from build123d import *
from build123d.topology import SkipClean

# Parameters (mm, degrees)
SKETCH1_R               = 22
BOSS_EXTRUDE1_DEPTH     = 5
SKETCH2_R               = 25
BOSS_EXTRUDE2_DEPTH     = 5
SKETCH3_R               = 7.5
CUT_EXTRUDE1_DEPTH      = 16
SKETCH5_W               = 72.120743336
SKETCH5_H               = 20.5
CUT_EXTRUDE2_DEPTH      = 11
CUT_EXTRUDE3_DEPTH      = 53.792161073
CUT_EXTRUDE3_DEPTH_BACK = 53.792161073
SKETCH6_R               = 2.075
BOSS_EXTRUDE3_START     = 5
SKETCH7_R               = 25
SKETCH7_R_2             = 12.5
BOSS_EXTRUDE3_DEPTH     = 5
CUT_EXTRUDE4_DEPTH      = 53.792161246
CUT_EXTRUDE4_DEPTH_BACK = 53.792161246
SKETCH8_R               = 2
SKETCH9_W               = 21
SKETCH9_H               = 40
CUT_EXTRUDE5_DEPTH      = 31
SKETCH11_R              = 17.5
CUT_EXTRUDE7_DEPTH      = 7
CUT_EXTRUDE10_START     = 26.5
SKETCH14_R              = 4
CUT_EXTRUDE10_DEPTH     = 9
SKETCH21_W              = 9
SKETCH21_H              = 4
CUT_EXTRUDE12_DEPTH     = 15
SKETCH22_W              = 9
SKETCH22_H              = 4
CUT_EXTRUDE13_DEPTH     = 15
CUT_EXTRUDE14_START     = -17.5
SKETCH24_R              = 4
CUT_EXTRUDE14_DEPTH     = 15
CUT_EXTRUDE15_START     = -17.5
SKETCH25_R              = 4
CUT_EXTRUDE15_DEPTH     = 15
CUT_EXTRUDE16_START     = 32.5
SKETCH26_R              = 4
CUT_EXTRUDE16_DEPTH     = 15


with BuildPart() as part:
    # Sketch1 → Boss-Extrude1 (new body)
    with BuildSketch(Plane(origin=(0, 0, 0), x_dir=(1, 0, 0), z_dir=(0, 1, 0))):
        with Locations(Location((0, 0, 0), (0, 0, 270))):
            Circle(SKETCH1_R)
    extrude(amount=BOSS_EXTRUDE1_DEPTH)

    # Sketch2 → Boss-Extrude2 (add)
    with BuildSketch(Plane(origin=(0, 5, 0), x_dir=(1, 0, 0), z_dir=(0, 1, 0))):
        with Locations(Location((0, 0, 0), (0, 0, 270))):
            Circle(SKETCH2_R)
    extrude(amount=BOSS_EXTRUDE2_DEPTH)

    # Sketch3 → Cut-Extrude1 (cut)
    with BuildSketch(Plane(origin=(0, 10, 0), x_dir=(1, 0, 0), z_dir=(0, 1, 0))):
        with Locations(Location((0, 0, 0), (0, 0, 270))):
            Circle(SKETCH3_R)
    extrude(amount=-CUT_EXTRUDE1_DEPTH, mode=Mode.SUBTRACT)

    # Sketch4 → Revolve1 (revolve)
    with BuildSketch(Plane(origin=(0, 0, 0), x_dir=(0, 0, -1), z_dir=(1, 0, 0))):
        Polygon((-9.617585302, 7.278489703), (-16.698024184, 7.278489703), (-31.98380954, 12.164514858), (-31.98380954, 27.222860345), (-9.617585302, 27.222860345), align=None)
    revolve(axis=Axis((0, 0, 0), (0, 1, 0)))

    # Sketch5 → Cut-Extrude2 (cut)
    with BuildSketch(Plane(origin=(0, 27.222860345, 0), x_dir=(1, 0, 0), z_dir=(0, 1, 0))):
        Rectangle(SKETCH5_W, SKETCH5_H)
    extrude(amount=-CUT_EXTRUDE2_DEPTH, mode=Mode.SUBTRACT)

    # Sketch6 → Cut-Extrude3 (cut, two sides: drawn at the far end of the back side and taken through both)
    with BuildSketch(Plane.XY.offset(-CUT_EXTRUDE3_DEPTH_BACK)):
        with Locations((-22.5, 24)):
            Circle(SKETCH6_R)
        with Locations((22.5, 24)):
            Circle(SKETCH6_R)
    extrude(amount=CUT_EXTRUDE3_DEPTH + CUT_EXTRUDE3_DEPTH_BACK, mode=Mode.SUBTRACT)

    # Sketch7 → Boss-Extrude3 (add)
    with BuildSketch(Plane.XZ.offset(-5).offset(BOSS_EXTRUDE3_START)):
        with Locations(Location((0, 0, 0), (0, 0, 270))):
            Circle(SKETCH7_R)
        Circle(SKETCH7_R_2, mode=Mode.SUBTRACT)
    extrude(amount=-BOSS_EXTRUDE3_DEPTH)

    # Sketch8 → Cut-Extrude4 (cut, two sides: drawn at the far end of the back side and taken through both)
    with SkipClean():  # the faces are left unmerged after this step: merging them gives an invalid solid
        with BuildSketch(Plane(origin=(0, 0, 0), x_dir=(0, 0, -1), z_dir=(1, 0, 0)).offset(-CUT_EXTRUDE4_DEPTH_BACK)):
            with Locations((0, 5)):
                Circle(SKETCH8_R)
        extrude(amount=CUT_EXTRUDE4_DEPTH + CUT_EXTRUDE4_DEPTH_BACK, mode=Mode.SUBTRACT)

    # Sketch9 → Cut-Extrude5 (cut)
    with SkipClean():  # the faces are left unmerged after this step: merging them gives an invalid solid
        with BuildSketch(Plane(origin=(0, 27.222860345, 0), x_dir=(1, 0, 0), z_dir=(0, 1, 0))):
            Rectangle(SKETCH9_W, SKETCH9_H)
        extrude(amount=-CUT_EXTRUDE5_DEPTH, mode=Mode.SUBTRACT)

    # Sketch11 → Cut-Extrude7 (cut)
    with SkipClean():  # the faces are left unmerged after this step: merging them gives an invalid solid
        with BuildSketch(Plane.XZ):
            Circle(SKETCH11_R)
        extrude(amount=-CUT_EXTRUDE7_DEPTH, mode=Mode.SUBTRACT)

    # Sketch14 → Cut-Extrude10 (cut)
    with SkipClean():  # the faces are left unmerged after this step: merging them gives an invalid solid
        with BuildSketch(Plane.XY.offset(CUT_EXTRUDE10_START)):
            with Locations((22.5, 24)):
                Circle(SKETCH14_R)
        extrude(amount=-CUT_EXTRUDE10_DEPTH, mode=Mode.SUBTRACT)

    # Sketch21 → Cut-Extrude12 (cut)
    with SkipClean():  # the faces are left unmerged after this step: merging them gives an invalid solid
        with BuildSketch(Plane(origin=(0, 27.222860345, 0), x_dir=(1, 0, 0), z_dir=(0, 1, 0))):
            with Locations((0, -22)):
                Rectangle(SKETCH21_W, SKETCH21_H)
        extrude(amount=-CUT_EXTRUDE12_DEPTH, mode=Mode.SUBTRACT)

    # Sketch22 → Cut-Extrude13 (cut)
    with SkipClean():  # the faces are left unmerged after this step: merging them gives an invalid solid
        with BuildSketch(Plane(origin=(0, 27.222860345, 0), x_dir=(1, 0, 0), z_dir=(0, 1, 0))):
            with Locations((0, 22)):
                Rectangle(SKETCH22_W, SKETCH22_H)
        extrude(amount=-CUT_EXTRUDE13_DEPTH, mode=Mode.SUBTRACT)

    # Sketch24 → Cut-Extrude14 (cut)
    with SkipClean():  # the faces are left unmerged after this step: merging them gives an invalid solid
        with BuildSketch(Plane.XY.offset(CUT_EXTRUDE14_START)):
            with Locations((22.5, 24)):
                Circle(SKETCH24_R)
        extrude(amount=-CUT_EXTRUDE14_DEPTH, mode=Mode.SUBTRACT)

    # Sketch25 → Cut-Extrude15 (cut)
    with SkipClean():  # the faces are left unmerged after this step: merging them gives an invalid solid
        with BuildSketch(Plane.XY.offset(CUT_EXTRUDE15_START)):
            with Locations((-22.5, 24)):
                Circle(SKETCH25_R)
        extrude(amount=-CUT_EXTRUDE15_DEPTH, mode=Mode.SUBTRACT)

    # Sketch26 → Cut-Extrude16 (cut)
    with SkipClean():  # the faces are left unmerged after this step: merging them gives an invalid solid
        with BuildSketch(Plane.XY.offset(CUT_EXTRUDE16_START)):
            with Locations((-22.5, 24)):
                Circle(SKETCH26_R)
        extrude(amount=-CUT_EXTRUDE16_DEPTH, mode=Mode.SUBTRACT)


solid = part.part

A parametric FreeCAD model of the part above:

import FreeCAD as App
import Part
import Sketcher
Q = App.Units.Quantity


def add_polygon(sketch, points):
    """Adds a closed chain of lines whose ends are joined by coincident constraints."""
    first, n = sketch.GeometryCount, len(points)
    for a, b in zip(points, points[1:] + points[:1]):
        sketch.addGeometry(Part.LineSegment(App.Vector(*a, 0), App.Vector(*b, 0)), False)
    for i in range(n):
        sketch.addConstraint(Sketcher.Constraint("Coincident", first + i, 2, first + (i + 1) % n, 1))

doc = App.newDocument("Part")
body = doc.addObject("PartDesign::Body", "Body")

# Sketch on XZ plane
sketch1 = body.newObject("Sketcher::SketchObject", "Sketch")
sketch1.AttachmentSupport = (doc.getObject("XZ_Plane"), [""])
sketch1.MapMode = "FlatFace"
sketch1.addGeometry(Part.Circle(App.Vector(0, 0, 0), App.Vector(0, 0, 1), 22), False)
sketch1.addConstraint([
    Sketcher.Constraint("Coincident", 0, 3, -1, 1),
    Sketcher.Constraint("Diameter", 0, Q("44 mm")),
])
pad1 = body.newObject("PartDesign::Pad", "Pad")
pad1.Profile = sketch1
pad1.Length = 5
pad1.Reversed = True

# Sketch on XZ plane
sketch2 = body.newObject("Sketcher::SketchObject", "Sketch001")
sketch2.AttachmentSupport = (doc.getObject("XZ_Plane"), [""])
sketch2.MapMode = "FlatFace"
sketch2.AttachmentOffset = App.Placement(App.Vector(0, 0, -5), App.Rotation())
sketch2.addGeometry(Part.Circle(App.Vector(0, 0, 0), App.Vector(0, 0, 1), 25), False)
sketch2.addConstraint([
    Sketcher.Constraint("Coincident", 0, 3, -1, 1),
    Sketcher.Constraint("Diameter", 0, Q("50 mm")),
])
pad2 = body.newObject("PartDesign::Pad", "Pad001")
pad2.Profile = sketch2
pad2.Length = 5
pad2.Reversed = True

# Sketch on XZ plane
sketch3 = body.newObject("Sketcher::SketchObject", "Sketch002")
sketch3.AttachmentSupport = (doc.getObject("XZ_Plane"), [""])
sketch3.MapMode = "FlatFace"
sketch3.AttachmentOffset = App.Placement(App.Vector(0, 0, -10), App.Rotation())
sketch3.addGeometry(Part.Circle(App.Vector(0, 0, 0), App.Vector(0, 0, 1), 8), False)
sketch3.addConstraint([
    Sketcher.Constraint("Coincident", 0, 3, -1, 1),
    Sketcher.Constraint("Diameter", 0, Q("15 mm")),
])
pocket1 = body.newObject("PartDesign::Pocket", "Pocket")
pocket1.Profile = sketch3
pocket1.Length = 16
pocket1.Reversed = True

# Sketch on YZ plane
sketch4 = body.newObject("Sketcher::SketchObject", "Sketch003")
sketch4.AttachmentSupport = (doc.getObject("YZ_Plane"), [""])
sketch4.MapMode = "FlatFace"
add_polygon(sketch4, [(7, 17), (7, 10), (27, 10), (27, 32), (12, 32)])  # lines 0-4
sketch4.addConstraint([
    Sketcher.Constraint("Vertical", 0),
    Sketcher.Constraint("Horizontal", 1),
    Sketcher.Constraint("Vertical", 2),
    Sketcher.Constraint("Horizontal", 3),
    Sketcher.Constraint("DistanceX", 1, 1, 1, 2, Q("19.944371 mm")),
    Sketcher.Constraint("DistanceY", 0, 2, 0, 1, Q("7.080439 mm")),
    Sketcher.Constraint("DistanceX", 3, 2, 3, 1, Q("15.058345 mm")),
    Sketcher.Constraint("DistanceY", 2, 1, 2, 2, Q("22.366224 mm")),
    Sketcher.Constraint("DistanceX", -1, 1, 0, 2, Q("7.27849 mm")),
    Sketcher.Constraint("DistanceY", -1, 1, 2, 2, Q("31.98381 mm")),
])
revolution = body.newObject("PartDesign::Revolution", "Revolution")
revolution.Profile = sketch4
revolution.ReferenceAxis = (sketch4, ["H_Axis"])
revolution.Angle = 360

# Sketch on XZ plane
sketch5 = body.newObject("Sketcher::SketchObject", "Sketch004")
sketch5.AttachmentSupport = (doc.getObject("XZ_Plane"), [""])
sketch5.MapMode = "FlatFace"
sketch5.AttachmentOffset = App.Placement(App.Vector(0, 0, -27.22286), App.Rotation())
add_polygon(sketch5, [(-36, -10), (-36, 10), (36, 10), (36, -10)])  # lines 0-3
sketch5.addConstraint([
    Sketcher.Constraint("Vertical", 0),
    Sketcher.Constraint("Horizontal", 1),
    Sketcher.Constraint("Vertical", 2),
    Sketcher.Constraint("Horizontal", 3),
    Sketcher.Constraint("Symmetric", 0, 2, 2, 2, -1, 1),
    Sketcher.Constraint("DistanceY", 0, 1, 0, 2, Q("20.5 mm")),
    Sketcher.Constraint("DistanceX", 1, 1, 1, 2, Q("72.120743 mm")),
])
pocket2 = body.newObject("PartDesign::Pocket", "Pocket001")
pocket2.Profile = sketch5
pocket2.Length = 11
pocket2.Reversed = True

# Sketch on XY plane
sketch6 = body.newObject("Sketcher::SketchObject", "Sketch005")
sketch6.AttachmentSupport = (doc.getObject("XY_Plane"), [""])
sketch6.MapMode = "FlatFace"
sketch6.addGeometry([
    Part.Circle(App.Vector(-22.5, 24, 0), App.Vector(0, 0, 1), 2.1),
    Part.Circle(App.Vector(22.5, 24, 0), App.Vector(0, 0, 1), 2.1),
], False)
sketch6.addConstraint([
    Sketcher.Constraint("Equal", 0, 1),
    Sketcher.Constraint("Symmetric", 0, 3, 1, 3, -2),
    Sketcher.Constraint("Diameter", 0, Q("4.15 mm")),
    Sketcher.Constraint("DistanceY", -1, 1, 0, 3, Q("24 mm")),
    Sketcher.Constraint("DistanceX", 0, 3, 1, 3, Q("45 mm")),
])
pocket3 = body.newObject("PartDesign::Pocket", "Pocket002")
pocket3.Profile = sketch6
pocket3.Type = "ThroughAll"
pocket3.Midplane = True

# Sketch on XZ plane
sketch7 = body.newObject("Sketcher::SketchObject", "Sketch006")
sketch7.AttachmentSupport = (doc.getObject("XZ_Plane"), [""])
sketch7.MapMode = "FlatFace"
sketch7.addGeometry([
    Part.Circle(App.Vector(0, 0, 0), App.Vector(0, 0, 1), 25),
    Part.Circle(App.Vector(0, 0, 0), App.Vector(0, 0, 1), 12),
], False)
sketch7.addConstraint([
    Sketcher.Constraint("Coincident", 0, 3, -1, 1),
    Sketcher.Constraint("Coincident", 1, 3, -1, 1),
    Sketcher.Constraint("Diameter", 0, Q("50 mm")),
    Sketcher.Constraint("Diameter", 1, Q("25 mm")),
])
pad3 = body.newObject("PartDesign::Pad", "Pad002")
pad3.Profile = sketch7
pad3.Length = 5
pad3.Reversed = True

# Sketch on YZ plane
sketch8 = body.newObject("Sketcher::SketchObject", "Sketch007")
sketch8.AttachmentSupport = (doc.getObject("YZ_Plane"), [""])
sketch8.MapMode = "FlatFace"
sketch8.addGeometry(Part.Circle(App.Vector(5, 0, 0), App.Vector(0, 0, 1), 2), False)
sketch8.addConstraint([
    Sketcher.Constraint("PointOnObject", 0, 3, -1),
    Sketcher.Constraint("Diameter", 0, Q("4 mm")),
    Sketcher.Constraint("DistanceX", -1, 1, 0, 3, Q("5 mm")),
])
pocket4 = body.newObject("PartDesign::Pocket", "Pocket003")
pocket4.Profile = sketch8
pocket4.Type = "ThroughAll"
pocket4.Midplane = True

# Sketch on XZ plane
sketch9 = body.newObject("Sketcher::SketchObject", "Sketch008")
sketch9.AttachmentSupport = (doc.getObject("XZ_Plane"), [""])
sketch9.MapMode = "FlatFace"
sketch9.AttachmentOffset = App.Placement(App.Vector(0, 0, -27.22286), App.Rotation())
add_polygon(sketch9, [(-10, -20), (-10, 20), (10, 20), (10, -20)])  # lines 0-3
sketch9.addConstraint([
    Sketcher.Constraint("Vertical", 0),
    Sketcher.Constraint("Horizontal", 1),
    Sketcher.Constraint("Vertical", 2),
    Sketcher.Constraint("Horizontal", 3),
    Sketcher.Constraint("Symmetric", 0, 2, 2, 2, -1, 1),
    Sketcher.Constraint("DistanceX", 1, 1, 1, 2, Q("21 mm")),
    Sketcher.Constraint("DistanceY", 0, 1, 0, 2, Q("40 mm")),
])
pocket5 = body.newObject("PartDesign::Pocket", "Pocket004")
pocket5.Profile = sketch9
pocket5.Length = 31
pocket5.Reversed = True

# Sketch on XZ plane
sketch10 = body.newObject("Sketcher::SketchObject", "Sketch009")
sketch10.AttachmentSupport = (doc.getObject("XZ_Plane"), [""])
sketch10.MapMode = "FlatFace"
sketch10.addGeometry(Part.Circle(App.Vector(0, 0, 0), App.Vector(0, 0, 1), 18), False)
sketch10.addConstraint([
    Sketcher.Constraint("Coincident", 0, 3, -1, 1),
    Sketcher.Constraint("Diameter", 0, Q("35 mm")),
])
pocket6 = body.newObject("PartDesign::Pocket", "Pocket005")
pocket6.Profile = sketch10
pocket6.Length = 7

# Sketch on XY plane
sketch11 = body.newObject("Sketcher::SketchObject", "Sketch010")
sketch11.AttachmentSupport = (doc.getObject("XY_Plane"), [""])
sketch11.MapMode = "FlatFace"
sketch11.AttachmentOffset = App.Placement(App.Vector(0, 0, 26.5), App.Rotation())
sketch11.addGeometry(Part.Circle(App.Vector(22.5, 24, 0), App.Vector(0, 0, 1), 4), False)
sketch11.addConstraint([
    Sketcher.Constraint("Diameter", 0, Q("8 mm")),
    Sketcher.Constraint("DistanceY", -1, 1, 0, 3, Q("24 mm")),
    Sketcher.Constraint("DistanceX", -1, 1, 0, 3, Q("22.5 mm")),
])
pocket7 = body.newObject("PartDesign::Pocket", "Pocket006")
pocket7.Profile = sketch11
pocket7.Length = 9

# Sketch on XZ plane
sketch12 = body.newObject("Sketcher::SketchObject", "Sketch011")
sketch12.AttachmentSupport = (doc.getObject("XZ_Plane"), [""])
sketch12.MapMode = "FlatFace"
sketch12.AttachmentOffset = App.Placement(App.Vector(0, 0, -27.22286), App.Rotation())
add_polygon(sketch12, [(-4.5, 20), (-4.5, 24), (4.5, 24), (4.5, 20)])  # lines 0-3
sketch12.addConstraint([
    Sketcher.Constraint("Vertical", 0),
    Sketcher.Constraint("Horizontal", 1),
    Sketcher.Constraint("Vertical", 2),
    Sketcher.Constraint("Horizontal", 3),
    Sketcher.Constraint("DistanceX", 1, 1, 1, 2, Q("9 mm")),
    Sketcher.Constraint("DistanceY", 0, 1, 0, 2, Q("4 mm")),
    Sketcher.Constraint("DistanceY", -1, 1, 0, 2, Q("24 mm")),
    Sketcher.Constraint("DistanceX", 0, 2, -1, 1, Q("4.5 mm")),
])
pocket8 = body.newObject("PartDesign::Pocket", "Pocket007")
pocket8.Profile = sketch12
pocket8.Length = 15
pocket8.Reversed = True

# Sketch on XZ plane
sketch13 = body.newObject("Sketcher::SketchObject", "Sketch012")
sketch13.AttachmentSupport = (doc.getObject("XZ_Plane"), [""])
sketch13.MapMode = "FlatFace"
sketch13.AttachmentOffset = App.Placement(App.Vector(0, 0, -27.22286), App.Rotation())
add_polygon(sketch13, [(-4.5, -24), (-4.5, -20), (4.5, -20), (4.5, -24)])  # lines 0-3
sketch13.addConstraint([
    Sketcher.Constraint("Vertical", 0),
    Sketcher.Constraint("Horizontal", 1),
    Sketcher.Constraint("Vertical", 2),
    Sketcher.Constraint("Horizontal", 3),
    Sketcher.Constraint("DistanceX", 1, 1, 1, 2, Q("9 mm")),
    Sketcher.Constraint("DistanceY", 0, 1, 0, 2, Q("4 mm")),
    Sketcher.Constraint("DistanceY", 0, 2, -1, 1, Q("20 mm")),
    Sketcher.Constraint("DistanceX", 0, 2, -1, 1, Q("4.5 mm")),
])
pocket9 = body.newObject("PartDesign::Pocket", "Pocket008")
pocket9.Profile = sketch13
pocket9.Length = 15
pocket9.Reversed = True

# Sketch on XY plane
sketch14 = body.newObject("Sketcher::SketchObject", "Sketch013")
sketch14.AttachmentSupport = (doc.getObject("XY_Plane"), [""])
sketch14.MapMode = "FlatFace"
sketch14.AttachmentOffset = App.Placement(App.Vector(0, 0, -17.5), App.Rotation())
sketch14.addGeometry(Part.Circle(App.Vector(22.5, 24, 0), App.Vector(0, 0, 1), 4), False)
sketch14.addConstraint([
    Sketcher.Constraint("Diameter", 0, Q("8 mm")),
    Sketcher.Constraint("DistanceY", -1, 1, 0, 3, Q("24 mm")),
    Sketcher.Constraint("DistanceX", -1, 1, 0, 3, Q("22.5 mm")),
])
pocket10 = body.newObject("PartDesign::Pocket", "Pocket009")
pocket10.Profile = sketch14
pocket10.Length = 15

# Sketch on XY plane
sketch15 = body.newObject("Sketcher::SketchObject", "Sketch014")
sketch15.AttachmentSupport = (doc.getObject("XY_Plane"), [""])
sketch15.MapMode = "FlatFace"
sketch15.AttachmentOffset = App.Placement(App.Vector(0, 0, -17.5), App.Rotation())
sketch15.addGeometry(Part.Circle(App.Vector(-22.5, 24, 0), App.Vector(0, 0, 1), 4), False)
sketch15.addConstraint([
    Sketcher.Constraint("Diameter", 0, Q("8 mm")),
    Sketcher.Constraint("DistanceY", -1, 1, 0, 3, Q("24 mm")),
    Sketcher.Constraint("DistanceX", 0, 3, -1, 1, Q("22.5 mm")),
])
pocket11 = body.newObject("PartDesign::Pocket", "Pocket010")
pocket11.Profile = sketch15
pocket11.Length = 15

# Sketch on XY plane
sketch16 = body.newObject("Sketcher::SketchObject", "Sketch015")
sketch16.AttachmentSupport = (doc.getObject("XY_Plane"), [""])
sketch16.MapMode = "FlatFace"
sketch16.AttachmentOffset = App.Placement(App.Vector(0, 0, 32.5), App.Rotation())
sketch16.addGeometry(Part.Circle(App.Vector(-22.5, 24, 0), App.Vector(0, 0, 1), 4), False)
sketch16.addConstraint([
    Sketcher.Constraint("Diameter", 0, Q("8 mm")),
    Sketcher.Constraint("DistanceY", -1, 1, 0, 3, Q("24 mm")),
    Sketcher.Constraint("DistanceX", 0, 3, -1, 1, Q("22.5 mm")),
])
pocket12 = body.newObject("PartDesign::Pocket", "Pocket011")
pocket12.Profile = sketch16
pocket12.Length = 15

doc.recompute()
